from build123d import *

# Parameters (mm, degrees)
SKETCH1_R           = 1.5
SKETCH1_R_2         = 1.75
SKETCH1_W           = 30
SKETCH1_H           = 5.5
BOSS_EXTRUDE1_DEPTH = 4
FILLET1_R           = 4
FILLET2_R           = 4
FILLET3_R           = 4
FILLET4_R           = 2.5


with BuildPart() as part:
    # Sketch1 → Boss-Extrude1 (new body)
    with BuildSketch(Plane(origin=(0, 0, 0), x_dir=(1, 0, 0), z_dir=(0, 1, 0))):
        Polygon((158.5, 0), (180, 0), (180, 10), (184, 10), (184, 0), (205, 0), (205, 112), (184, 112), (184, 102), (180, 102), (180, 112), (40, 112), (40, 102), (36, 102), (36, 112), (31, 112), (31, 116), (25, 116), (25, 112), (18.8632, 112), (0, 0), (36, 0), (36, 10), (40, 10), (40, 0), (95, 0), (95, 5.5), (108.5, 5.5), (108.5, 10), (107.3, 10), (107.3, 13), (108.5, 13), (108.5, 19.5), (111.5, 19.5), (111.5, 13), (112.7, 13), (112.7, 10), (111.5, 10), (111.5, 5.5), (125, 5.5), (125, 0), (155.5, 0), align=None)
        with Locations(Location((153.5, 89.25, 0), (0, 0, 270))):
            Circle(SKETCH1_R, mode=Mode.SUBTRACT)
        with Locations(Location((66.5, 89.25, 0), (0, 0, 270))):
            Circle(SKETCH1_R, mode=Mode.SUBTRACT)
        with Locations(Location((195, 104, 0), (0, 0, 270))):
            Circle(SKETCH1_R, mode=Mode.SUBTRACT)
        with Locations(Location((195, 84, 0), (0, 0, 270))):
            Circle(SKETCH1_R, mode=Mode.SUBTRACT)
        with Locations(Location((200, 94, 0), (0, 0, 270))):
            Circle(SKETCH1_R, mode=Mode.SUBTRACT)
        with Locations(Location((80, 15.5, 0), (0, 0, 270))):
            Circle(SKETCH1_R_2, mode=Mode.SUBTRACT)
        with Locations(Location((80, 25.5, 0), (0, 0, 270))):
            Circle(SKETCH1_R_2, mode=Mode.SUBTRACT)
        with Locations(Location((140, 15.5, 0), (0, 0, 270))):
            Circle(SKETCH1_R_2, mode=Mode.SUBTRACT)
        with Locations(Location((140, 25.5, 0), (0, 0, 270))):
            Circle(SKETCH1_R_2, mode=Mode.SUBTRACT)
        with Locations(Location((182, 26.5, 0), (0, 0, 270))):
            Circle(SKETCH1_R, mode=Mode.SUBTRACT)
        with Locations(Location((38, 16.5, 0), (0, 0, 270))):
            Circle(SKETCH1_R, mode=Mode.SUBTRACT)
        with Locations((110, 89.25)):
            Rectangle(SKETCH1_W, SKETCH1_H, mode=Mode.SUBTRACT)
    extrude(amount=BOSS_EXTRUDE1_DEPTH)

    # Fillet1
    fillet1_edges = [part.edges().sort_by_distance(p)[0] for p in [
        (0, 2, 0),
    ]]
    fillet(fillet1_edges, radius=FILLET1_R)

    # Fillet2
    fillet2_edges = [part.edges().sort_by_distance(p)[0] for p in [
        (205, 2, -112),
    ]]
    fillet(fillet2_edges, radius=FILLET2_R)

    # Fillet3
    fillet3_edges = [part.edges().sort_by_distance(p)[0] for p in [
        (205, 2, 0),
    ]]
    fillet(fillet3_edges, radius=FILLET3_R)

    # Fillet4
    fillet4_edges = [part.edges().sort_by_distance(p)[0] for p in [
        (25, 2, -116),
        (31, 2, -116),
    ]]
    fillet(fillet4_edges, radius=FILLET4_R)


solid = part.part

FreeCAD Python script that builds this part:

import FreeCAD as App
import Part
import Sketcher
Q = App.Units.Quantity


def edges_at(feature, points):
    """Names of the edges that pass closest to the given points."""
    edges = feature.Shape.Edges
    near = lambda p: min(range(len(edges)), key=lambda i: edges[i].distToShape(Part.Vertex(*p))[0])
    return sorted({f"Edge{near(p) + 1}" for p in points})

doc = App.newDocument("Part")
body = doc.addObject("PartDesign::Body", "Body")

sketch1 = body.newObject("Sketcher::SketchObject", "Sketch")
sketch1.AttachmentSupport = (doc.getObject("XZ_Plane"), [""])
sketch1.MapMode = "FlatFace"
sketch1.addGeometry([
    Part.LineSegment(App.Vector(180, 0, 0), App.Vector(180, -10, 0)),
    Part.LineSegment(App.Vector(180, -10, 0), App.Vector(184, -10, 0)),
    Part.LineSegment(App.Vector(184, -10, 0), App.Vector(184, 0, 0)),
    Part.LineSegment(App.Vector(184, 0, 0), App.Vector(205, 0, 0)),
    Part.LineSegment(App.Vector(205, 0, 0), App.Vector(205, -112, 0)),
    Part.LineSegment(App.Vector(205, -112, 0), App.Vector(184, -112, 0)),
    Part.LineSegment(App.Vector(184, -112, 0), App.Vector(184, -102, 0)),
    Part.LineSegment(App.Vector(184, -102, 0), App.Vector(180, -102, 0)),
    Part.LineSegment(App.Vector(180, -102, 0), App.Vector(180, -112, 0)),
    Part.LineSegment(App.Vector(180, -112, 0), App.Vector(40, -112, 0)),
    Part.LineSegment(App.Vector(40, -112, 0), App.Vector(40, -102, 0)),
    Part.LineSegment(App.Vector(40, -102, 0), App.Vector(36, -102, 0)),
    Part.LineSegment(App.Vector(36, -102, 0), App.Vector(36, -112, 0)),
    Part.LineSegment(App.Vector(36, -112, 0), App.Vector(31, -112, 0)),
    Part.LineSegment(App.Vector(31, -112, 0), App.Vector(31, -116, 0)),
    Part.LineSegment(App.Vector(31, -116, 0), App.Vector(25, -116, 0)),
    Part.LineSegment(App.Vector(25, -116, 0), App.Vector(25, -112, 0)),
    Part.LineSegment(App.Vector(25, -112, 0), App.Vector(18.9, -112, 0)),
    Part.LineSegment(App.Vector(18.9, -112, 0), App.Vector(0, 0, 0)),
    Part.LineSegment(App.Vector(0, 0, 0), App.Vector(36, 0, 0)),
    Part.LineSegment(App.Vector(36, 0, 0), App.Vector(36, -10, 0)),
    Part.LineSegment(App.Vector(36, -10, 0), App.Vector(40, -10, 0)),
    Part.LineSegment(App.Vector(40, -10, 0), App.Vector(40, 0, 0)),
    Part.LineSegment(App.Vector(40, 0, 0), App.Vector(95, 0, 0)),
    Part.LineSegment(App.Vector(95, 0, 0), App.Vector(95, -5.5, 0)),
    Part.LineSegment(App.Vector(95, -5.5, 0), App.Vector(108.5, -5.5, 0)),
    Part.LineSegment(App.Vector(108.5, -5.5, 0), App.Vector(108.5, -10, 0)),
    Part.LineSegment(App.Vector(108.5, -10, 0), App.Vector(107.3, -10, 0)),
    Part.LineSegment(App.Vector(107.3, -10, 0), App.Vector(107.3, -13, 0)),
    Part.LineSegment(App.Vector(107.3, -13, 0), App.Vector(108.5, -13, 0)),
    Part.LineSegment(App.Vector(108.5, -13, 0), App.Vector(108.5, -19.5, 0)),
    Part.LineSegment(App.Vector(108.5, -19.5, 0), App.Vector(111.5, -19.5, 0)),
    Part.LineSegment(App.Vector(111.5, -19.5, 0), App.Vector(111.5, -13, 0)),
    Part.LineSegment(App.Vector(111.5, -13, 0), App.Vector(112.7, -13, 0)),
    Part.LineSegment(App.Vector(112.7, -13, 0), App.Vector(112.7, -10, 0)),
    Part.LineSegment(App.Vector(112.7, -10, 0), App.Vector(111.5, -10, 0)),
    Part.LineSegment(App.Vector(111.5, -10, 0), App.Vector(111.5, -5.5, 0)),
    Part.LineSegment(App.Vector(111.5, -5.5, 0), App.Vector(125, -5.5, 0)),
    Part.LineSegment(App.Vector(125, -5.5, 0), App.Vector(125, 0, 0)),
    Part.LineSegment(App.Vector(125, 0, 0), App.Vector(180, 0, 0)),
    Part.Circle(App.Vector(38, -16.5, 0), App.Vector(0, 0, 1), 1.5),
    Part.Circle(App.Vector(80, -15.5, 0), App.Vector(0, 0, 1), 1.8),
    Part.Circle(App.Vector(80, -25.5, 0), App.Vector(0, 0, 1), 1.8),
    Part.Circle(App.Vector(140, -15.5, 0), App.Vector(0, 0, 1), 1.8),
    Part.Circle(App.Vector(140, -25.5, 0), App.Vector(0, 0, 1), 1.8),
    Part.Circle(App.Vector(182, -26.5, 0), App.Vector(0, 0, 1), 1.5),
    Part.Circle(App.Vector(66.5, -89.2, 0), App.Vector(0, 0, 1), 1.5),
    Part.LineSegment(App.Vector(125, -86.5, 0), App.Vector(95, -86.5, 0)),
    Part.LineSegment(App.Vector(95, -86.5, 0), App.Vector(95, -92, 0)),
    Part.LineSegment(App.Vector(95, -92, 0), App.Vector(125, -92, 0)),
    Part.LineSegment(App.Vector(125, -92, 0), App.Vector(125, -86.5, 0)),
    Part.Circle(App.Vector(153.5, -89.2, 0), App.Vector(0, 0, 1), 1.5),
    Part.Circle(App.Vector(195, -84, 0), App.Vector(0, 0, 1), 1.5),
    Part.Circle(App.Vector(200, -94, 0), App.Vector(0, 0, 1), 1.5),
    Part.Circle(App.Vector(195, -104, 0), App.Vector(0, 0, 1), 1.5),
], False)
sketch1.addConstraint([
    Sketcher.Constraint("Coincident", 0, 2, 1, 1),
    Sketcher.Constraint("Coincident", 1, 2, 2, 1),
    Sketcher.Constraint("Coincident", 2, 2, 3, 1),
    Sketcher.Constraint("Coincident", 3, 2, 4, 1),
    Sketcher.Constraint("Coincident", 4, 2, 5, 1),
    Sketcher.Constraint("Coincident", 5, 2, 6, 1),
    Sketcher.Constraint("Coincident", 6, 2, 7, 1),
    Sketcher.Constraint("Coincident", 7, 2, 8, 1),
    Sketcher.Constraint("Coincident", 8, 2, 9, 1),
    Sketcher.Constraint("Coincident", 9, 2, 10, 1),
    Sketcher.Constraint("Coincident", 10, 2, 11, 1),
    Sketcher.Constraint("Coincident", 11, 2, 12, 1),
    Sketcher.Constraint("Coincident", 12, 2, 13, 1),
    Sketcher.Constraint("Coincident", 13, 2, 14, 1),
    Sketcher.Constraint("Coincident", 14, 2, 15, 1),
    Sketcher.Constraint("Coincident", 15, 2, 16, 1),
    Sketcher.Constraint("Coincident", 16, 2, 17, 1),
    Sketcher.Constraint("Coincident", 17, 2, 18, 1),
    Sketcher.Constraint("Coincident", 18, 2, 19, 1),
    Sketcher.Constraint("Coincident", 19, 2, 20, 1),
    Sketcher.Constraint("Coincident", 20, 2, 21, 1),
    Sketcher.Constraint("Coincident", 21, 2, 22, 1),
    Sketcher.Constraint("Coincident", 22, 2, 23, 1),
    Sketcher.Constraint("Coincident", 23, 2, 24, 1),
    Sketcher.Constraint("Coincident", 24, 2, 25, 1),
    Sketcher.Constraint("Coincident", 25, 2, 26, 1),
    Sketcher.Constraint("Coincident", 26, 2, 27, 1),
    Sketcher.Constraint("Coincident", 27, 2, 28, 1),
    Sketcher.Constraint("Coincident", 28, 2, 29, 1),
    Sketcher.Constraint("Coincident", 29, 2, 30, 1),
    Sketcher.Constraint("Coincident", 30, 2, 31, 1),
    Sketcher.Constraint("Coincident", 31, 2, 32, 1),
    Sketcher.Constraint("Coincident", 32, 2, 33, 1),
    Sketcher.Constraint("Coincident", 33, 2, 34, 1),
    Sketcher.Constraint("Coincident", 34, 2, 35, 1),
    Sketcher.Constraint("Coincident", 35, 2, 36, 1),
    Sketcher.Constraint("Coincident", 36, 2, 37, 1),
    Sketcher.Constraint("Coincident", 37, 2, 38, 1),
    Sketcher.Constraint("Coincident", 38, 2, 39, 1),
    Sketcher.Constraint("Coincident", 39, 2, 0, 1),
    Sketcher.Constraint("Coincident", 47, 2, 48, 1),
    Sketcher.Constraint("Coincident", 48, 2, 49, 1),
    Sketcher.Constraint("Coincident", 49, 2, 50, 1),
    Sketcher.Constraint("Coincident", 50, 2, 47, 1),
    Sketcher.Constraint("Vertical", 0),
    Sketcher.Constraint("Horizontal", 1),
    Sketcher.Constraint("Vertical", 2),
    Sketcher.Constraint("Horizontal", 3),
    Sketcher.Constraint("Vertical", 4),
    Sketcher.Constraint("Horizontal", 5),
    Sketcher.Constraint("Vertical", 6),
    Sketcher.Constraint("Horizontal", 7),
    Sketcher.Constraint("Vertical", 8),
    Sketcher.Constraint("Horizontal", 9),
    Sketcher.Constraint("Vertical", 10),
    Sketcher.Constraint("Horizontal", 11),
    Sketcher.Constraint("Vertical", 12),
    Sketcher.Constraint("Horizontal", 13),
    Sketcher.Constraint("Vertical", 14),
    Sketcher.Constraint("Horizontal", 15),
    Sketcher.Constraint("Vertical", 16),
    Sketcher.Constraint("Horizontal", 17),
    Sketcher.Constraint("Horizontal", 19),
    Sketcher.Constraint("Vertical", 20),
    Sketcher.Constraint("Horizontal", 21),
    Sketcher.Constraint("Vertical", 22),
    Sketcher.Constraint("Horizontal", 23),
    Sketcher.Constraint("Vertical", 24),
    Sketcher.Constraint("Horizontal", 25),
    Sketcher.Constraint("Vertical", 26),
    Sketcher.Constraint("Horizontal", 27),
    Sketcher.Constraint("Vertical", 28),
    Sketcher.Constraint("Horizontal", 29),
    Sketcher.Constraint("Vertical", 30),
    Sketcher.Constraint("Horizontal", 31),
    Sketcher.Constraint("Vertical", 32),
    Sketcher.Constraint("Horizontal", 33),
    Sketcher.Constraint("Vertical", 34),
    Sketcher.Constraint("Horizontal", 35),
    Sketcher.Constraint("Vertical", 36),
    Sketcher.Constraint("Horizontal", 37),
    Sketcher.Constraint("Vertical", 38),
    Sketcher.Constraint("Horizontal", 39),
    Sketcher.Constraint("Horizontal", 47),
    Sketcher.Constraint("Vertical", 48),
    Sketcher.Constraint("Horizontal", 49),
    Sketcher.Constraint("Vertical", 50),
    Sketcher.Constraint("Coincident", 18, 2, -1, 1),
    Sketcher.Constraint("Equal", 41, 42),
    Sketcher.Constraint("Equal", 42, 43),
    Sketcher.Constraint("Equal", 43, 44),
    Sketcher.Constraint("Equal", 40, 45),
    Sketcher.Constraint("Equal", 45, 46),
    Sketcher.Constraint("Equal", 46, 51),
    Sketcher.Constraint("Equal", 51, 52),
    Sketcher.Constraint("Equal", 52, 53),
    Sketcher.Constraint("Equal", 53, 54),
    Sketcher.Constraint("PointOnObject", 2, 2, -1),
    Sketcher.Constraint("PointOnObject", 22, 2, -1),
    Sketcher.Constraint("PointOnObject", 38, 2, -1),
    Sketcher.Constraint("Horizontal", 41, 3, 43, 3),
    Sketcher.Constraint("Horizontal", 42, 3, 44, 3),
    Sketcher.Constraint("Horizontal", 46, 3, 51, 3),
    Sketcher.Constraint("Horizontal", 5, 2, 8, 2),
    Sketcher.Constraint("Horizontal", 7, 2, 10, 2),
    Sketcher.Constraint("Horizontal", 9, 2, 12, 2),
    Sketcher.Constraint("Horizontal", 13, 2, 16, 2),
    Sketcher.Constraint("Horizontal", 1, 2, 20, 2),
    Sketcher.Constraint("Horizontal", 21, 2, 26, 2),
    Sketcher.Constraint("Horizontal", 29, 2, 32, 2),
    Sketcher.Constraint("Horizontal", 27, 2, 34, 2),
    Sketcher.Constraint("Horizontal", 25, 2, 36, 2),
    Sketcher.Constraint("Vertical", 41, 3, 42, 3),
    Sketcher.Constraint("Vertical", 43, 3, 44, 3),
    Sketcher.Constraint("Vertical", 52, 3, 54, 3),
    Sketcher.Constraint("Vertical", 2, 2, 5, 2),
    Sketcher.Constraint("Vertical", 0, 2, 7, 2),
    Sketcher.Constraint("Vertical", 12, 2, 19, 2),
    Sketcher.Constraint("Vertical", 10, 2, 21, 2),
    Sketcher.Constraint("Vertical", 26, 2, 29, 2),
    Sketcher.Constraint("Vertical", 32, 2, 35, 2),
    Sketcher.Constraint("Vertical", 24, 2, 47, 2),
    Sketcher.Constraint("Vertical", 38, 2, 49, 2),
    Sketcher.Constraint("Equal", 7, 11),
    Sketcher.Constraint("Equal", 29, 33),
    Sketcher.Constraint("Equal", 25, 37),
    Sketcher.Constraint("Equal", 23, 39),
    Sketcher.Constraint("Equal", 2, 6),
    Sketcher.Constraint("Equal", 21, 14),
    Sketcher.Constraint("Equal", 31, 28),
    Sketcher.Constraint("Equal", 38, 48),
    Sketcher.Constraint("Diameter", 40, Q("3 mm")),
    Sketcher.Constraint("Diameter", 41, Q("3.5 mm")),
    Sketcher.Constraint("DistanceX", 1, 1, 1, 2, Q("4 mm")),
    Sketcher.Constraint("DistanceX", 3, 1, 3, 2, Q("21 mm")),
    Sketcher.Constraint("DistanceX", 9, 2, 9, 1, Q("140 mm")),
    Sketcher.Constraint("DistanceX", 13, 2, 13, 1, Q("5 mm")),
    Sketcher.Constraint("DistanceX", 15, 2, 15, 1, Q("6 mm")),
    Sketcher.Constraint("DistanceX", 19, 1, 19, 2, Q("36 mm")),
    Sketcher.Constraint("DistanceX", 23, 1, 23, 2, Q("55 mm")),
    Sketcher.Constraint("DistanceX", 31, 1, 31, 2, Q("3 mm")),
    Sketcher.Constraint("DistanceY", 0, 2, 0, 1, Q("10 mm")),
    Sketcher.Constraint("DistanceY", 4, 2, 4, 1, Q("112 mm")),
    Sketcher.Constraint("DistanceX", 27, 2, 27, 1, Q("1.2 mm")),
    Sketcher.Constraint("DistanceY", 24, 2, 24, 1, Q("5.5 mm")),
    Sketcher.Constraint("DistanceY", 30, 2, 30, 1, Q("6.5 mm")),
    Sketcher.Constraint("DistanceX", -1, 1, 40, 3, Q("38 mm")),
    Sketcher.Constraint("DistanceX", -1, 1, 41, 3, Q("80 mm")),
    Sketcher.Constraint("DistanceX", -1, 1, 43, 3, Q("140 mm")),
    Sketcher.Constraint("DistanceX", -1, 1, 45, 3, Q("182 mm")),
    Sketcher.Constraint("DistanceX", -1, 1, 52, 3, Q("195 mm")),
    Sketcher.Constraint("DistanceY", 52, 3, -1, 1, Q("84 mm")),
    Sketcher.Constraint("DistanceX", -1, 1, 53, 3, Q("200 mm")),
    Sketcher.Constraint("DistanceY", 53, 3, -1, 1, Q("94 mm")),
    Sketcher.Constraint("DistanceY", 54, 3, -1, 1, Q("104 mm")),
    Sketcher.Constraint("DistanceY", 48, 2, -1, 1, Q("92 mm")),
    Sketcher.Constraint("DistanceY", 40, 3, 41, 3, Q("1 mm")),
    Sketcher.Constraint("DistanceY", 42, 3, 41, 3, Q("10 mm")),
    Sketcher.Constraint("DistanceY", 45, 3, 44, 3, Q("1 mm")),
    Sketcher.Constraint("DistanceX", 46, 3, 51, 3, Q("87 mm")),
    Sketcher.Constraint("DistanceY", 41, 3, 24, 2, Q("10 mm")),
    Sketcher.Constraint("DistanceX", -1, 1, 46, 3, Q("66.5 mm")),
    Sketcher.Constraint("DistanceY", 46, 3, -1, 1, Q("89.25 mm")),
    Sketcher.Constraint("DistanceX", 17, 2, 17, 1, Q("6.1368 mm")),
])
pad1 = body.newObject("PartDesign::Pad", "Pad")
pad1.Profile = sketch1
pad1.Length = 4
pad1.Reversed = True
doc.recompute()

fillet = body.newObject("PartDesign::Fillet", "Fillet")
fillet.Base = (pad1, edges_at(pad1, [(0, 2, 0)]))
fillet.Radius = 4
doc.recompute()

fillet2 = body.newObject("PartDesign::Fillet", "Fillet001")
fillet2.Base = (fillet, edges_at(fillet, [(205, 2, -112)]))
fillet2.Radius = 4
doc.recompute()

fillet3 = body.newObject("PartDesign::Fillet", "Fillet002")
fillet3.Base = (fillet2, edges_at(fillet2, [(205, 2, 0)]))
fillet3.Radius = 4
doc.recompute()

fillet4 = body.newObject("PartDesign::Fillet", "Fillet003")
fillet4.Base = (fillet3, edges_at(fillet3, [(25, 2, -116), (31, 2, -116)]))
fillet4.Radius = 2.5

doc.recompute()
